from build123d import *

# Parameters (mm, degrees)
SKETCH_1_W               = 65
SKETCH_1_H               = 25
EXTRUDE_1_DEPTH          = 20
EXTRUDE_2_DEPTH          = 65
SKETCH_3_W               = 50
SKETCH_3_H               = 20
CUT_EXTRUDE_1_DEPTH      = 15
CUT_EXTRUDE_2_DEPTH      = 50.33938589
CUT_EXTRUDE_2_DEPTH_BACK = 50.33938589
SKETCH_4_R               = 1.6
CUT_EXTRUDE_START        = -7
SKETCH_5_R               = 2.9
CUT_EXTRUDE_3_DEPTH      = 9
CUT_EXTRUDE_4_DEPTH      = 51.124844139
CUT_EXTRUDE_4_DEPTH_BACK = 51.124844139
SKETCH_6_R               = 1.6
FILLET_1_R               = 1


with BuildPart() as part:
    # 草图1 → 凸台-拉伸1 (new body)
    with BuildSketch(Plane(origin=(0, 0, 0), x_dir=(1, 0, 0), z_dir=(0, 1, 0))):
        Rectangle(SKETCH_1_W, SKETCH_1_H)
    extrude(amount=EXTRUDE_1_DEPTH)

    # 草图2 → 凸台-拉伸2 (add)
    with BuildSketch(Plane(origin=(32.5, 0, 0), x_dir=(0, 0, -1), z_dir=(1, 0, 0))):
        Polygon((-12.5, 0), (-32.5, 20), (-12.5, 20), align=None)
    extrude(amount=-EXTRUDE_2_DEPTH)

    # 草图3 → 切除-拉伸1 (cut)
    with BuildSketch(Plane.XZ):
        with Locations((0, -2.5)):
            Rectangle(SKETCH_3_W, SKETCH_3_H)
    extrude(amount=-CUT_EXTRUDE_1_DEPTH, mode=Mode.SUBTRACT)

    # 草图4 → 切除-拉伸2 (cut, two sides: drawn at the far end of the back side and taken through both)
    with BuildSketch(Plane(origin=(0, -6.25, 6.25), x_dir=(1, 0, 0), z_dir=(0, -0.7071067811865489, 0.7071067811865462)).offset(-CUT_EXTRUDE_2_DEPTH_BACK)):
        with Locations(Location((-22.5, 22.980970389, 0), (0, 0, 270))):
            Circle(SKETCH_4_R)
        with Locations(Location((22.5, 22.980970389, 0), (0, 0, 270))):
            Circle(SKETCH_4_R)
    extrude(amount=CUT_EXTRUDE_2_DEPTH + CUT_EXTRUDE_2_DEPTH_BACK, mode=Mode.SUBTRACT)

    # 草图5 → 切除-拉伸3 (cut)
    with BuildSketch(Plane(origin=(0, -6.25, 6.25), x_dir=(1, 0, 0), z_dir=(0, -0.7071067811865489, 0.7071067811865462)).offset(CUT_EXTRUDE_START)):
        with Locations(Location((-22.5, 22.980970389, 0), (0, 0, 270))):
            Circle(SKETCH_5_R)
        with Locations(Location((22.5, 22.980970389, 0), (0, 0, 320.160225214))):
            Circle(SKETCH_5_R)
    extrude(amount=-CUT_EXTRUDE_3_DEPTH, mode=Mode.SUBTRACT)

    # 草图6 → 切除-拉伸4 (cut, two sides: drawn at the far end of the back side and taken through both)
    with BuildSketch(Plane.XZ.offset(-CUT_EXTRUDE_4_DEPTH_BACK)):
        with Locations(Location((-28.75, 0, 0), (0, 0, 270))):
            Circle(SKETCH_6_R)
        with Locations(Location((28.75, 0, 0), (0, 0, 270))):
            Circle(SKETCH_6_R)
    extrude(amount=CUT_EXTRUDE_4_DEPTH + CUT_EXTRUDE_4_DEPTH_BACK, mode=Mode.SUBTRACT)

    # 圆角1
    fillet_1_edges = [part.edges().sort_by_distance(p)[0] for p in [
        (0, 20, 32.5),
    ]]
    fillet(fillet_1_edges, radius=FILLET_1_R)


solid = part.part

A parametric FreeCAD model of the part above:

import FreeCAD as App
import Part
import Sketcher
from FreeCAD import Vector
Q = App.Units.Quantity


def edges_at(feature, points):
    """Names of the edges that pass closest to the given points."""
    edges = feature.Shape.Edges
    near = lambda p: min(range(len(edges)), key=lambda i: edges[i].distToShape(Part.Vertex(*p))[0])
    return sorted({f"Edge{near(p) + 1}" for p in points})

doc = App.newDocument("Part")
body = doc.addObject("PartDesign::Body", "Body")

# Sketch on XZ plane
sketch1 = doc.addObject("Sketcher::SketchObject", "Sketch")
body.addObject(sketch1)
sketch1.AttachmentSupport = (doc.XZ_Plane, [""])
sketch1.MapMode = "FlatFace"
sketch1.addGeometry([
    Part.LineSegment(Vector(-32, -12, 0), Vector(-32, 12, 0)),
    Part.LineSegment(Vector(-32, 12, 0), Vector(32, 12, 0)),
    Part.LineSegment(Vector(32, 12, 0), Vector(32, -12, 0)),
    Part.LineSegment(Vector(32, -12, 0), Vector(-32, -12, 0)),
], False)
sketch1.addConstraint([
    Sketcher.Constraint("Coincident", 0, 2, 1, 1),
    Sketcher.Constraint("Coincident", 1, 2, 2, 1),
    Sketcher.Constraint("Coincident", 2, 2, 3, 1),
    Sketcher.Constraint("Coincident", 3, 2, 0, 1),
    Sketcher.Constraint("Vertical", 0),
    Sketcher.Constraint("Horizontal", 1),
    Sketcher.Constraint("Vertical", 2),
    Sketcher.Constraint("Horizontal", 3),
    Sketcher.Constraint("Symmetric", 0, 2, 2, 2, -1, 1),
    Sketcher.Constraint("DistanceX", 1, 1, 1, 2, Q("65 mm")),
    Sketcher.Constraint("DistanceY", 0, 1, 0, 2, Q("25 mm")),
])
pad1 = doc.addObject("PartDesign::Pad", "Pad")
body.addObject(pad1)
pad1.Profile = sketch1
pad1.Length = 20
pad1.Reversed = True

# Sketch on YZ plane
sketch2 = doc.addObject("Sketcher::SketchObject", "Sketch001")
body.addObject(sketch2)
sketch2.AttachmentSupport = (doc.YZ_Plane, [""])
sketch2.MapMode = "FlatFace"
sketch2.AttachmentOffset = App.Placement(Vector(0, 0, 32.5), App.Rotation())
sketch2.addGeometry([
    Part.LineSegment(Vector(20, 32, 0), Vector(0, 12, 0)),
    Part.LineSegment(Vector(0, 12, 0), Vector(20, 12, 0)),
    Part.LineSegment(Vector(20, 12, 0), Vector(20, 32, 0)),
], False)
sketch2.addConstraint([
    Sketcher.Constraint("Coincident", 0, 2, 1, 1),
    Sketcher.Constraint("Coincident", 1, 2, 2, 1),
    Sketcher.Constraint("Coincident", 2, 2, 0, 1),
    Sketcher.Constraint("Horizontal", 1),
    Sketcher.Constraint("Vertical", 2),
    Sketcher.Constraint("PointOnObject", 0, 2, -2),
    Sketcher.Constraint("Equal", 1, 2),
    Sketcher.Constraint("DistanceX", 1, 1, 1, 2, Q("20 mm")),
    Sketcher.Constraint("DistanceY", -1, 1, 0, 2, Q("12.5 mm")),
])
pad2 = doc.addObject("PartDesign::Pad", "Pad001")
body.addObject(pad2)
pad2.Profile = sketch2
pad2.Length = 65
pad2.Reversed = True

# Sketch on XZ plane
sketch3 = doc.addObject("Sketcher::SketchObject", "Sketch002")
body.addObject(sketch3)
sketch3.AttachmentSupport = (doc.XZ_Plane, [""])
sketch3.MapMode = "FlatFace"
sketch3.addGeometry([
    Part.LineSegment(Vector(-25, 8, 0), Vector(-25, -12, 0)),
    Part.LineSegment(Vector(-25, -12, 0), Vector(25, -12, 0)),
    Part.LineSegment(Vector(25, -12, 0), Vector(25, 8, 0)),
    Part.LineSegment(Vector(25, 8, 0), Vector(-25, 8, 0)),
], False)
sketch3.addConstraint([
    Sketcher.Constraint("Coincident", 0, 2, 1, 1),
    Sketcher.Constraint("Coincident", 1, 2, 2, 1),
    Sketcher.Constraint("Coincident", 2, 2, 3, 1),
    Sketcher.Constraint("Coincident", 3, 2, 0, 1),
    Sketcher.Constraint("Vertical", 0),
    Sketcher.Constraint("Horizontal", 1),
    Sketcher.Constraint("Vertical", 2),
    Sketcher.Constraint("Horizontal", 3),
    Sketcher.Constraint("DistanceX", 1, 1, 1, 2, Q("50 mm")),
    Sketcher.Constraint("DistanceY", 0, 2, 0, 1, Q("20 mm")),
    Sketcher.Constraint("DistanceX", 0, 2, -1, 1, Q("25 mm")),
    Sketcher.Constraint("DistanceY", 0, 2, -1, 1, Q("12.5 mm")),
])
pocket1 = doc.addObject("PartDesign::Pocket", "Pocket")
body.addObject(pocket1)
pocket1.Profile = sketch3
pocket1.Length = 15

# Sketch on an angled plane
sketch4 = doc.addObject("Sketcher::SketchObject", "Sketch003")
body.addObject(sketch4)
sketch4.Placement = App.Placement(Vector(0, -6.25, 6.25), App.Rotation(Vector(1, 0, 0), Vector(0, 0.707106781, 0.707106781), Vector(0, -0.707106781, 0.707106781), "ZXY"))
sketch4.addGeometry([
    Part.Circle(Vector(-22.5, 23, 0), Vector(0, 0, 1), 1.6),
    Part.Circle(Vector(22.5, 23, 0), Vector(0, 0, 1), 1.6),
], False)
sketch4.addConstraint([
    Sketcher.Constraint("Equal", 0, 1),
    Sketcher.Constraint("Symmetric", 0, 3, 1, 3, -2),
    Sketcher.Constraint("Diameter", 0, Q("3.2 mm")),
    Sketcher.Constraint("DistanceX", 0, 3, 1, 3, Q("45 mm")),
    Sketcher.Constraint("DistanceY", -1, 1, 0, 3, Q("22.98097 mm")),
])
pocket2 = doc.addObject("PartDesign::Pocket", "Pocket001")
body.addObject(pocket2)
pocket2.Profile = sketch4
pocket2.Type = "ThroughAll"
pocket2.Midplane = True

# Sketch on an angled plane
sketch5 = doc.addObject("Sketcher::SketchObject", "Sketch004")
body.addObject(sketch5)
sketch5.Placement = App.Placement(Vector(0, -1.300253, 1.300253), App.Rotation(Vector(1, 0, 0), Vector(0, 0.707106781, 0.707106781), Vector(0, -0.707106781, 0.707106781), "ZXY"))
sketch5.addGeometry([
    Part.Circle(Vector(-22.5, 23, 0), Vector(0, 0, 1), 2.9),
    Part.Circle(Vector(22.5, 23, 0), Vector(0, 0, 1), 2.9),
], False)
sketch5.addConstraint([
    Sketcher.Constraint("Equal", 0, 1),
    Sketcher.Constraint("Symmetric", 0, 3, 1, 3, -2),
    Sketcher.Constraint("Diameter", 0, Q("5.8 mm")),
    Sketcher.Constraint("DistanceX", 0, 3, 1, 3, Q("45 mm")),
    Sketcher.Constraint("DistanceY", -1, 1, 0, 3, Q("22.98097 mm")),
])
pocket3 = doc.addObject("PartDesign::Pocket", "Pocket002")
body.addObject(pocket3)
pocket3.Profile = sketch5
pocket3.Length = 9

# Sketch on XZ plane
sketch6 = doc.addObject("Sketcher::SketchObject", "Sketch005")
body.addObject(sketch6)
sketch6.AttachmentSupport = (doc.XZ_Plane, [""])
sketch6.MapMode = "FlatFace"
sketch6.addGeometry([
    Part.Circle(Vector(-28.8, 0, 0), Vector(0, 0, 1), 1.6),
    Part.Circle(Vector(28.8, 0, 0), Vector(0, 0, 1), 1.6),
], False)
sketch6.addConstraint([
    Sketcher.Constraint("Equal", 0, 1),
    Sketcher.Constraint("Symmetric", 0, 3, 1, 3, -1, 1),
    Sketcher.Constraint("PointOnObject", 0, 3, -1),
    Sketcher.Constraint("Diameter", 0, Q("3.2 mm")),
    Sketcher.Constraint("DistanceX", 0, 3, 1, 3, Q("57.5 mm")),
])
pocket4 = doc.addObject("PartDesign::Pocket", "Pocket003")
body.addObject(pocket4)
pocket4.Profile = sketch6
pocket4.Type = "ThroughAll"
pocket4.Midplane = True
doc.recompute()

fillet = doc.addObject("PartDesign::Fillet", "Fillet")
body.addObject(fillet)
fillet.Base = (pocket4, edges_at(pocket4, [(0, 20, 32.5)]))
fillet.Radius = 1

doc.recompute()
